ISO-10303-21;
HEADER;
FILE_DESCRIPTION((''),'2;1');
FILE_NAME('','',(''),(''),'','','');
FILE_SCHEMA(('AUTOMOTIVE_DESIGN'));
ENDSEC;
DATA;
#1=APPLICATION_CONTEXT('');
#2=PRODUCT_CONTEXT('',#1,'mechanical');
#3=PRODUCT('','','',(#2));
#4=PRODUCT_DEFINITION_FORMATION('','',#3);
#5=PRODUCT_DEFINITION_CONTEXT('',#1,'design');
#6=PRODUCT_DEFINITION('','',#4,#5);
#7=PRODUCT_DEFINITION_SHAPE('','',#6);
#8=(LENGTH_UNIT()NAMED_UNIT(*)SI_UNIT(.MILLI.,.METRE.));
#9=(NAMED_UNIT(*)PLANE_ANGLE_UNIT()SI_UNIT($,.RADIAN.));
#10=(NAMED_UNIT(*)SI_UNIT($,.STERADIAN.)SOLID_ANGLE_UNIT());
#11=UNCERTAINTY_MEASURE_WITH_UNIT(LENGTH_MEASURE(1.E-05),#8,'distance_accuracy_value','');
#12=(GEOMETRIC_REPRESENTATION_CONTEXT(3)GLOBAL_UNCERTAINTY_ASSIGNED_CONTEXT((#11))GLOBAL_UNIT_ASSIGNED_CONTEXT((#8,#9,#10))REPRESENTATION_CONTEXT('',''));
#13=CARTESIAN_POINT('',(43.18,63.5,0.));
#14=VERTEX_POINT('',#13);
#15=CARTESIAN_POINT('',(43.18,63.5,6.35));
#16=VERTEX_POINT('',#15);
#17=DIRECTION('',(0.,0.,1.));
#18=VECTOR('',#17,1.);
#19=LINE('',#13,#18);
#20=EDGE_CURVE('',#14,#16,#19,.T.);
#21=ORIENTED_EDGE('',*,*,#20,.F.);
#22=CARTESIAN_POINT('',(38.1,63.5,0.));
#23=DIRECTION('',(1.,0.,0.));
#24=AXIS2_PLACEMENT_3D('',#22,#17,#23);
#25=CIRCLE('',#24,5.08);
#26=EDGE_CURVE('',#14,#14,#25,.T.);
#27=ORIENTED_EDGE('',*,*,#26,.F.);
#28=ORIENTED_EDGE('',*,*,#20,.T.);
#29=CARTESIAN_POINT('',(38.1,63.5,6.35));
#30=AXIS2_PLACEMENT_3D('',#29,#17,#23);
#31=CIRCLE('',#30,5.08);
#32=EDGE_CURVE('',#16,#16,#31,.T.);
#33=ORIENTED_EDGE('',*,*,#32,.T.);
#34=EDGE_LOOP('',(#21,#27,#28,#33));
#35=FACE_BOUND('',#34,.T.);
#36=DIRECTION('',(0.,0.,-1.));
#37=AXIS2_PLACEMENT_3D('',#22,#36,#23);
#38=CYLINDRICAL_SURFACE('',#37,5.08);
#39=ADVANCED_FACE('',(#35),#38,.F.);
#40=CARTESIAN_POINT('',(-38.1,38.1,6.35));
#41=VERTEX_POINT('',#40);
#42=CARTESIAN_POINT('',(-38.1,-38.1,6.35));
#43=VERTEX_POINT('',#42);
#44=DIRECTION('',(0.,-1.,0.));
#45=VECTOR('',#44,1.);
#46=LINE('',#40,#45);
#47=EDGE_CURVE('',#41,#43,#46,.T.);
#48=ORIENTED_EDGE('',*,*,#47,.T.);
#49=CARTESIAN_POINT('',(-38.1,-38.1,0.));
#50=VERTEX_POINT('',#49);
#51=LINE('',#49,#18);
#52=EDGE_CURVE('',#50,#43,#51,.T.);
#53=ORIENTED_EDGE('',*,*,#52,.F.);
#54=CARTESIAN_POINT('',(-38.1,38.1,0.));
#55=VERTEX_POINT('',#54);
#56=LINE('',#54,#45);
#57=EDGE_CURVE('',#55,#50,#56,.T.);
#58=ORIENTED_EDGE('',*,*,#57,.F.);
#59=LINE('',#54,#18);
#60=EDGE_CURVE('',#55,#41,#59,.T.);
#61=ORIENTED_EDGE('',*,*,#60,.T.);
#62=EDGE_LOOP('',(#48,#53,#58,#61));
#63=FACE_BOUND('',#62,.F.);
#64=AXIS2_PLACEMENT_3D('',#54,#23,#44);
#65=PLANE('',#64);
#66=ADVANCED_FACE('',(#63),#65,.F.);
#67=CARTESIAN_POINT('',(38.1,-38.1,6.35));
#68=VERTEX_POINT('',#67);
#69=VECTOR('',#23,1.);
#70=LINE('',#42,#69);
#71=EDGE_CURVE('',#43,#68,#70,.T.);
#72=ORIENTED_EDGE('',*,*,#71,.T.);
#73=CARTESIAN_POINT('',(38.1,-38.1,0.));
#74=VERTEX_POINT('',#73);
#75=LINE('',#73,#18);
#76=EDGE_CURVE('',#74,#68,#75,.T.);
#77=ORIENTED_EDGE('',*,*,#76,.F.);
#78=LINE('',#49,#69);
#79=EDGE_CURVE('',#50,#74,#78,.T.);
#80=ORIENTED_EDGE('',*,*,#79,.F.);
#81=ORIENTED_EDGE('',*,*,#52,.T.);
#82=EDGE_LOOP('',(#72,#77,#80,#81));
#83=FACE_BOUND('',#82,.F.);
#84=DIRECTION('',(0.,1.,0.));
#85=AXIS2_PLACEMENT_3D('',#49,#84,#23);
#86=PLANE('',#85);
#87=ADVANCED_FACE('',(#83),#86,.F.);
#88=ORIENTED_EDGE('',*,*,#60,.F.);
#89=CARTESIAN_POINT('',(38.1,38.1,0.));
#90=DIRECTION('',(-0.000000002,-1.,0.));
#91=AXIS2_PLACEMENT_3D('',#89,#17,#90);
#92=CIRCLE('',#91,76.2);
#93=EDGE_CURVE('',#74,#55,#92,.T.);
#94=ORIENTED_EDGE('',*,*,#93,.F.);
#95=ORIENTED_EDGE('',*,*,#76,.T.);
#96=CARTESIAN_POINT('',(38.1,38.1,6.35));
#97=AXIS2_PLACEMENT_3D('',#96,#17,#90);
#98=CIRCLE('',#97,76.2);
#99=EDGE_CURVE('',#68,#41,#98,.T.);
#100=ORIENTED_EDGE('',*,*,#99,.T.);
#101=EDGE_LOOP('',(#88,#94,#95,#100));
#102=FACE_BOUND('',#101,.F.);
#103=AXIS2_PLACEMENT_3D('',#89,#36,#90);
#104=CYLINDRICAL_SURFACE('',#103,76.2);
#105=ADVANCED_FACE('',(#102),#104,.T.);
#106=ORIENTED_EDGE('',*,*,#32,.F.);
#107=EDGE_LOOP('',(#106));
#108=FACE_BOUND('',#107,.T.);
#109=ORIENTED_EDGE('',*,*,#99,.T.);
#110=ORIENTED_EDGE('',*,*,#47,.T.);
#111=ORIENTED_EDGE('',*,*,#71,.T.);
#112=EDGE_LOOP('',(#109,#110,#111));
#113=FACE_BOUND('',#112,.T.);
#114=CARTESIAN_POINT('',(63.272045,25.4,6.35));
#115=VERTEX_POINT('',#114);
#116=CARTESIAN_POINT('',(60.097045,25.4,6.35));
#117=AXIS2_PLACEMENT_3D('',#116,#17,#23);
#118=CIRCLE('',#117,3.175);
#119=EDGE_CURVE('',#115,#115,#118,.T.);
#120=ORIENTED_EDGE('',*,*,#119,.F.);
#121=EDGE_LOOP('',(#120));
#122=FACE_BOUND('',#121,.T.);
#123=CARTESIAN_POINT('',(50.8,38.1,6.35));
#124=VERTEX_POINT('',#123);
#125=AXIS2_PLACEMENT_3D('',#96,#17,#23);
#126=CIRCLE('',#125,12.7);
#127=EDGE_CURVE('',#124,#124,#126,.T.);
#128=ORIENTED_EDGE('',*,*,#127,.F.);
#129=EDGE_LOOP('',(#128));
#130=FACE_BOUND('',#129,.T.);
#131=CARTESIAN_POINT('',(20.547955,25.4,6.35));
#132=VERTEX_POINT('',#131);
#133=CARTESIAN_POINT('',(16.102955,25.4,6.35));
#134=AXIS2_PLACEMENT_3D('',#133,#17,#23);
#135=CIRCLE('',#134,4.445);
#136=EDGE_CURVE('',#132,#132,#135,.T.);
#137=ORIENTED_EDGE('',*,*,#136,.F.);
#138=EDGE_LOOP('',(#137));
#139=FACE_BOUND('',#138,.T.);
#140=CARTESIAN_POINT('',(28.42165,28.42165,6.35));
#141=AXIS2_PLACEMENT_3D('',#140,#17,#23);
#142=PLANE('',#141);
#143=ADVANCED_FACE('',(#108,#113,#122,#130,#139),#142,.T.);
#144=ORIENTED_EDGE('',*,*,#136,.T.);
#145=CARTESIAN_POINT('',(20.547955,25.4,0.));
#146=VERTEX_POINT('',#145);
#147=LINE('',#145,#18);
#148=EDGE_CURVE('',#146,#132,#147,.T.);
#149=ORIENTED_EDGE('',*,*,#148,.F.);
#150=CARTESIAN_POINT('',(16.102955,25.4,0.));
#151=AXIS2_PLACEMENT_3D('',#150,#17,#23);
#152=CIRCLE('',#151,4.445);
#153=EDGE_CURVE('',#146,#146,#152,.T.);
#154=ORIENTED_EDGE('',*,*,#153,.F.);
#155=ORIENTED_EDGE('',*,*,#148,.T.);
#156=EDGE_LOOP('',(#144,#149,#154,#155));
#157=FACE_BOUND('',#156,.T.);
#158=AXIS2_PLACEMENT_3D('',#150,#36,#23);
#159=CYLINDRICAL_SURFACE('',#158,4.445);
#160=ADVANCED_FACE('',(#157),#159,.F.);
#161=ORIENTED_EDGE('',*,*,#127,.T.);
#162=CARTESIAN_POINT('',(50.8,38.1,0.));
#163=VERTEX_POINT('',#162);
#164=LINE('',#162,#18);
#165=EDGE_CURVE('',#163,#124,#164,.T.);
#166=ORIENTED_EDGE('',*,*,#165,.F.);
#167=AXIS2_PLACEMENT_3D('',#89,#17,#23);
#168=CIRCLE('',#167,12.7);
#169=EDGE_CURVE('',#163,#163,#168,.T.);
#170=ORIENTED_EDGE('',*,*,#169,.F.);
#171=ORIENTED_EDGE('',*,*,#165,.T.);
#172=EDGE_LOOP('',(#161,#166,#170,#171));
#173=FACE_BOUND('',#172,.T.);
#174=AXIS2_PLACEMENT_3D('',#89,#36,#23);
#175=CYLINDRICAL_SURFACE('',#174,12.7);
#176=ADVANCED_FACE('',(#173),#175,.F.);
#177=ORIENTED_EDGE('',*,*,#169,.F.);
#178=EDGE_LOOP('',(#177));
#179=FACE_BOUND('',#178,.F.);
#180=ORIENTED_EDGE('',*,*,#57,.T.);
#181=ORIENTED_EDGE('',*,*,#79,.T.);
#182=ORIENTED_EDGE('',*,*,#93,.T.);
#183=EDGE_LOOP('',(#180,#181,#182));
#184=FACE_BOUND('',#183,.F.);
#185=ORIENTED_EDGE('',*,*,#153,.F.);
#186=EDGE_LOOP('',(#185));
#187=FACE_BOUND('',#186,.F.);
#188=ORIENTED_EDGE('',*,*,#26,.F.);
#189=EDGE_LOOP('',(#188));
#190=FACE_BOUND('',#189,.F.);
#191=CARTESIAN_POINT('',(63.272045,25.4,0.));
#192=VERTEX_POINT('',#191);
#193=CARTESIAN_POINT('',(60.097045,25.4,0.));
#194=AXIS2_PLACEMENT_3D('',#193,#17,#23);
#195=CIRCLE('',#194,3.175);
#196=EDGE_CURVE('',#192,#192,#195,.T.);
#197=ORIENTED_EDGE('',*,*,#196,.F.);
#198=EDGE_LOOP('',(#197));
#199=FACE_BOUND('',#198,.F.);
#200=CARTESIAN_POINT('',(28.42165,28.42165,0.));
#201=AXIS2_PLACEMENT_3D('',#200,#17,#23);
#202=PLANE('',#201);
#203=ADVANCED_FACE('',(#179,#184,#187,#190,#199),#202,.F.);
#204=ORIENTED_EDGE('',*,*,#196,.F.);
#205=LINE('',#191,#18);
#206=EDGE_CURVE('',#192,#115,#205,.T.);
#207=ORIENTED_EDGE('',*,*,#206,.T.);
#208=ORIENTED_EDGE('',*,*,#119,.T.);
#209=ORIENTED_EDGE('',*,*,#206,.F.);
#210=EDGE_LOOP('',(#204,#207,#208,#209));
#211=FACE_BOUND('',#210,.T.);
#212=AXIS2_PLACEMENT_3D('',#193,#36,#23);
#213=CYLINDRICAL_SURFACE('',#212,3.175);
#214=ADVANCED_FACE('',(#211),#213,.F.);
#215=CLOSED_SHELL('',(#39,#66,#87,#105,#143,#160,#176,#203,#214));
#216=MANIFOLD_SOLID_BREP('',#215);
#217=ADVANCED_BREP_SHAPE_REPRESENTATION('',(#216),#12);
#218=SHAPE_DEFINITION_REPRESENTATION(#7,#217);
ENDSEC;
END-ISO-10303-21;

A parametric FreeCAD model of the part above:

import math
import FreeCAD as App
import Part
import Sketcher
Q = App.Units.Quantity

doc = App.newDocument("Part")
params = doc.addObject("Spreadsheet::Sheet", "Params")
for row, (alias, value) in enumerate([
    ("sketch1_diameter", "1 in"),
    ("sketch1_radius", "3 in"),
    ("sketch1_diameter2", "0.4 in"),
    ("sketch1_diameter3", "0.35 in"),
    ("sketch1_diameter4", "0.25 in"),
    ("pad1_length", "0.25 in"),
], start=1):
    params.set(f"A{row}", alias)
    params.set(f"B{row}", "=" + value)
    params.setAlias(f"B{row}", alias)

body = doc.addObject("PartDesign::Body", "Body")

# Sketch on XY plane
sketch1 = body.newObject("Sketcher::SketchObject", "Sketch")
sketch1.AttachmentSupport = (doc.getObject("XY_Plane"), [""])
sketch1.MapMode = "FlatFace"
sketch1.addGeometry([
    Part.LineSegment(App.Vector(-38.1, -38.1, 0), App.Vector(38.1, -38.1, 0)),  # 0
    Part.ArcOfCircle(Part.Circle(App.Vector(38.1, 38.1, 0), App.Vector(0, 0, 1), 76.2), math.radians(-90), math.radians(180)),  # 1
    Part.LineSegment(App.Vector(-38.1, 38.1, 0), App.Vector(-38.1, -38.1, 0)),  # 2
    Part.Circle(App.Vector(16.102955, 25.4, 0), App.Vector(0, 0, 1), 4.445),  # 3
    Part.Circle(App.Vector(60.097045, 25.4, 0), App.Vector(0, 0, 1), 3.175),  # 4
    Part.Circle(App.Vector(38.1, 38.1, 0), App.Vector(0, 0, 1), 12.7),  # 5
    Part.Circle(App.Vector(38.1, 63.5, 0), App.Vector(0, 0, 1), 5.08),  # 6
], False)
sketch1.addConstraint([
    Sketcher.Constraint("Tangent", 0, 2, 1, 1),
    Sketcher.Constraint("Tangent", 1, 2, 2, 1),
    Sketcher.Constraint("Coincident", 2, 2, 0, 1),
    Sketcher.Constraint("Horizontal", 0),
    Sketcher.Constraint("Vertical", 2),
    Sketcher.Constraint("Coincident", 5, 3, 1, 3),
    Sketcher.Constraint("Symmetric", 0, 2, 1, 2, -1, 1),
    Sketcher.Constraint("Horizontal", 3, 3, 4, 3),
    Sketcher.Constraint("Vertical", 5, 3, 6, 3),
    Sketcher.Constraint("Diameter", 5, Q("1 in")),
    Sketcher.Constraint("Radius", 1, Q("3 in")),
    Sketcher.Constraint("Diameter", 6, Q("0.4 in")),
    Sketcher.Constraint("Diameter", 3, Q("0.35 in")),
    Sketcher.Constraint("Diameter", 4, Q("0.25 in")),
    Sketcher.Constraint("DistanceY", -1, 1, 3, 3, Q("1 in")),
    Sketcher.Constraint("DistanceY", 1, 3, 6, 3, Q("1 in")),
    Sketcher.Constraint("DistanceX", 3, 3, 4, 3, 43.99409),
    Sketcher.Constraint("DistanceX", -1, 1, 3, 3, 16.102955),
])
sketch1.setExpression("Constraints[9]", "Params.sketch1_diameter")
sketch1.setExpression("Constraints[10]", "Params.sketch1_radius")
sketch1.setExpression("Constraints[11]", "Params.sketch1_diameter2")
sketch1.setExpression("Constraints[12]", "Params.sketch1_diameter3")
sketch1.setExpression("Constraints[13]", "Params.sketch1_diameter4")
pad1 = body.newObject("PartDesign::Pad", "Pad")
pad1.Profile = sketch1
pad1.setExpression("Length", "Params.pad1_length")

doc.recompute()
